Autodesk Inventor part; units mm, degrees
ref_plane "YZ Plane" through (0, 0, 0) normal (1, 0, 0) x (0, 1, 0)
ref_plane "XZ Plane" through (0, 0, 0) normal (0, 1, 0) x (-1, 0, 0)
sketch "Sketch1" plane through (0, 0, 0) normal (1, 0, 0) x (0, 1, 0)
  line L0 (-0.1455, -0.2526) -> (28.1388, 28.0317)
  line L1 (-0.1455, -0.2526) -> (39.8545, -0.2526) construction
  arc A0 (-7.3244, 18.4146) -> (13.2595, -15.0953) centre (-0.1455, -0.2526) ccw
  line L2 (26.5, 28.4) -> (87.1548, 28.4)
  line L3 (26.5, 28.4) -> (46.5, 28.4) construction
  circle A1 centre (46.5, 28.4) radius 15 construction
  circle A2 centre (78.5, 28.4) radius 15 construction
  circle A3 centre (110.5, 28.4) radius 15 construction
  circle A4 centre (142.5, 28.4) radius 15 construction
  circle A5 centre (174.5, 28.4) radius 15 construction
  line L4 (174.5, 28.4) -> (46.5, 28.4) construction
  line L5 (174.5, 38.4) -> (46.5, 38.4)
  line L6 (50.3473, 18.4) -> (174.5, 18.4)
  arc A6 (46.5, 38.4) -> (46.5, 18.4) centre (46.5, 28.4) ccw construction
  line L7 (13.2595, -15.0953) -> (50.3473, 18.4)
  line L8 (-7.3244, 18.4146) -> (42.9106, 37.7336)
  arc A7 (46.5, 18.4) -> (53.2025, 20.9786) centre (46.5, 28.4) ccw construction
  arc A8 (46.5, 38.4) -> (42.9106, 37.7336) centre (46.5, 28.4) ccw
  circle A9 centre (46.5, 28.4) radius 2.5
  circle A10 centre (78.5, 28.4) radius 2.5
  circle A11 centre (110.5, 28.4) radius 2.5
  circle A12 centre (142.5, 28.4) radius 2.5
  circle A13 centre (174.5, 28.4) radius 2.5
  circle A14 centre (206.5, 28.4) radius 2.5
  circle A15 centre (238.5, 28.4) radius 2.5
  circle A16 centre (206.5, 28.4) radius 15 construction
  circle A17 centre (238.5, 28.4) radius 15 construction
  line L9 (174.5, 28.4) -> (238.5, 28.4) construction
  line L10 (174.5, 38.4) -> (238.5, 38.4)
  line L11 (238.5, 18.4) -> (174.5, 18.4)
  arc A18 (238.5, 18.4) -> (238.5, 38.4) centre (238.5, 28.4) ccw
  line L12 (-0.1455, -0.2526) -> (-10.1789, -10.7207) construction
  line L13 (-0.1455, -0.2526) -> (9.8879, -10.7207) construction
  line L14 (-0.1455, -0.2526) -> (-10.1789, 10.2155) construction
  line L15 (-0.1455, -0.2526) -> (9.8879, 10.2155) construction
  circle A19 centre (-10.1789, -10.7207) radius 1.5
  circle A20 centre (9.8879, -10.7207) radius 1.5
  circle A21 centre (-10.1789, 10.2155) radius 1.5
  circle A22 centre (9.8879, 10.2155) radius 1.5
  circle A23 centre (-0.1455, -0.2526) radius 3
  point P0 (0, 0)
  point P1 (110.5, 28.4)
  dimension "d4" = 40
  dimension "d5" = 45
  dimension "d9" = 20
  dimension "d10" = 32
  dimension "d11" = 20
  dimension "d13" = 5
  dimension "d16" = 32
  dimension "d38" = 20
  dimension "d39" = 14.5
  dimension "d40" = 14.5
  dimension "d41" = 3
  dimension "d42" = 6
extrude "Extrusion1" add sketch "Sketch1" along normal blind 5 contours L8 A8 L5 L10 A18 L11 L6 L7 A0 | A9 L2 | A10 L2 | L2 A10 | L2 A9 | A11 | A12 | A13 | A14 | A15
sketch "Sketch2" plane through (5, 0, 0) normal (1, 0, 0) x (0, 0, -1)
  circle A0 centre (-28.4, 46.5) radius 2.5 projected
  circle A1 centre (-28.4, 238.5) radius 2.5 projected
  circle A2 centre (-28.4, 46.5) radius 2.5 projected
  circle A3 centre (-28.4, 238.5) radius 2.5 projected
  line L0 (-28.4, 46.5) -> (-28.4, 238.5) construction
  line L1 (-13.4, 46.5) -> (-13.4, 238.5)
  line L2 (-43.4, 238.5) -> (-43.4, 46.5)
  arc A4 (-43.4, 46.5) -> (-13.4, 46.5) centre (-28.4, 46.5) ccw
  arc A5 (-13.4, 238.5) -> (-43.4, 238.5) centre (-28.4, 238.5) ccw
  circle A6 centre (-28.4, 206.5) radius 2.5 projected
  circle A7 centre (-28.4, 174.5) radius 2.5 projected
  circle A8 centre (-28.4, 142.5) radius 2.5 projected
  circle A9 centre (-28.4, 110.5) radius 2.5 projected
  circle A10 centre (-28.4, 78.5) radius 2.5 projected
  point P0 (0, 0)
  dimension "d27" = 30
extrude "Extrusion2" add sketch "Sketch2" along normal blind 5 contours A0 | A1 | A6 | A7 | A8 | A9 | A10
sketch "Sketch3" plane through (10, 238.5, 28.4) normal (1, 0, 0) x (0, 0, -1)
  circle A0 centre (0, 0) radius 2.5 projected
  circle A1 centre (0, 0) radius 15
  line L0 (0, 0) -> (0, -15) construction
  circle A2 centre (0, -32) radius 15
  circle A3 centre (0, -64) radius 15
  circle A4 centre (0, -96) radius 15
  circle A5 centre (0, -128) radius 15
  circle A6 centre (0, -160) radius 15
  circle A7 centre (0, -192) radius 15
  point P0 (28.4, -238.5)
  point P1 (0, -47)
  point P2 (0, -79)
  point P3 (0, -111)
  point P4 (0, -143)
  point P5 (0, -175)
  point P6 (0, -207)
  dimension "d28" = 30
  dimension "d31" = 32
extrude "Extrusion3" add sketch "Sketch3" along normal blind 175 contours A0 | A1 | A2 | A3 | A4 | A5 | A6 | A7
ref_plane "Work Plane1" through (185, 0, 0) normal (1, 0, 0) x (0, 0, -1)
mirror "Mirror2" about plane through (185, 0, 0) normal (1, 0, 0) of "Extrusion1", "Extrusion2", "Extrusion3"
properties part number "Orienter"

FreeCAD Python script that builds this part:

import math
import FreeCAD as App
import Part
import Sketcher
from FreeCAD import Vector
Q = App.Units.Quantity

doc = App.newDocument("Part")
body = doc.addObject("PartDesign::Body", "Body")

# Sketch on YZ plane
sketch1 = body.newObject("Sketcher::SketchObject", "Sketch")
sketch1.AttachmentSupport = (doc.getObject("YZ_Plane"), [""])
sketch1.MapMode = "FlatFace"
sketch1.addGeometry([
    Part.LineSegment(Vector(42.9106, 37.7336, 0), Vector(-7.3244, 18.4146, 0)),  # 0
    Part.ArcOfCircle(Part.Circle(Vector(-0.1455, -0.2526, 0), Vector(0, 0, 1), 20.000024), math.radians(111.035393), math.radians(312.086378)),  # 1
    Part.LineSegment(Vector(13.2595, -15.0953, 0), Vector(50.3473, 18.4, 0)),  # 2
    Part.LineSegment(Vector(50.3473, 18.4, 0), Vector(238.5, 18.4, 0)),  # 3
    Part.ArcOfCircle(Part.Circle(Vector(238.5, 28.4, 0), Vector(0, 0, 1), 10), math.radians(-90), math.radians(90)),  # 4
    Part.LineSegment(Vector(238.5, 38.4, 0), Vector(46.5, 38.4, 0)),  # 5
    Part.ArcOfCircle(Part.Circle(Vector(46.5, 28.4, 0), Vector(0, 0, 1), 10), math.radians(90), math.radians(111.035125)),  # 6
    Part.Circle(Vector(-10.1789, -10.7207, 0), Vector(0, 0, 1), 1.5),  # 7
    Part.Circle(Vector(9.8879, -10.7207, 0), Vector(0, 0, 1), 1.5),  # 8
    Part.Circle(Vector(-0.1455, -0.2526, 0), Vector(0, 0, 1), 3),  # 9
    Part.Circle(Vector(-10.1789, 10.2155, 0), Vector(0, 0, 1), 1.5),  # 10
    Part.Circle(Vector(9.8879, 10.2155, 0), Vector(0, 0, 1), 1.5),  # 11
], False)
sketch1.addConstraint([
    Sketcher.Constraint("Coincident", 0, 2, 1, 1),
    Sketcher.Constraint("Coincident", 1, 2, 2, 1),
    Sketcher.Constraint("Coincident", 2, 2, 3, 1),
    Sketcher.Constraint("Coincident", 3, 2, 4, 1),
    Sketcher.Constraint("Coincident", 4, 2, 5, 1),
    Sketcher.Constraint("Coincident", 5, 2, 6, 1),
    Sketcher.Constraint("Coincident", 6, 2, 0, 1),
    Sketcher.Constraint("Horizontal", 3),
    Sketcher.Constraint("Horizontal", 5),
    Sketcher.Constraint("Coincident", 9, 3, 1, 3),
    Sketcher.Constraint("Diameter", 7, Q("3 mm")),
    Sketcher.Constraint("Diameter", 8, Q("3 mm")),
    Sketcher.Constraint("Diameter", 9, Q("6 mm")),
    Sketcher.Constraint("Diameter", 10, Q("3 mm")),
    Sketcher.Constraint("Diameter", 11, Q("3 mm")),
    Sketcher.Constraint("Radius", 1, Q("20 mm")),
    Sketcher.Constraint("Radius", 4, Q("10 mm")),
    Sketcher.Constraint("Radius", 6, Q("10 mm")),
    Sketcher.Constraint("DistanceX", 5, 2, 5, 1, Q("192 mm")),
    Sketcher.Constraint("DistanceX", 6, 3, 4, 3, Q("192 mm")),
    Sketcher.Constraint("DistanceX", 6, 3, 3, 2, Q("192 mm")),
    Sketcher.Constraint("DistanceX", 6, 3, 4, 2, Q("192 mm")),
    Sketcher.Constraint("DistanceX", -1, 1, 4, 3, Q("238.5 mm")),
    Sketcher.Constraint("DistanceY", -1, 1, 4, 3, Q("28.4 mm")),
    Sketcher.Constraint("DistanceX", 3, 1, 3, 2, Q("188.1527 mm")),
    Sketcher.Constraint("DistanceX", 7, 3, -1, 1, Q("10.179 mm")),
    Sketcher.Constraint("DistanceX", -1, 1, 8, 3, Q("9.888 mm")),
    Sketcher.Constraint("DistanceX", 10, 3, -1, 1, Q("10.179 mm")),
    Sketcher.Constraint("DistanceX", -1, 1, 11, 3, Q("9.888 mm")),
    Sketcher.Constraint("DistanceY", 7, 3, 1, 3, Q("10.468 mm")),
    Sketcher.Constraint("DistanceY", 8, 3, 1, 3, Q("10.468 mm")),
    Sketcher.Constraint("DistanceY", 1, 3, 10, 3, Q("10.468 mm")),
    Sketcher.Constraint("DistanceY", 1, 3, 11, 3, Q("10.468 mm")),
    Sketcher.Constraint("DistanceY", 10, 3, 0, 2, Q("8.199 mm")),
    Sketcher.Constraint("DistanceX", 1, 3, 1, 2, Q("13.405 mm")),
    Sketcher.Constraint("DistanceY", 11, 3, 6, 2, Q("27.518 mm")),
    Sketcher.Constraint("DistanceX", 0, 2, 6, 2, Q("50.235 mm")),
    Sketcher.Constraint("Distance", 2, Q("49.9744 mm")),
])
pad1 = body.newObject("PartDesign::Pad", "Pad")
pad1.Profile = sketch1
pad1.Length = 5

# Sketch on YZ plane
sketch2 = body.newObject("Sketcher::SketchObject", "Sketch001")
sketch2.AttachmentSupport = (doc.getObject("YZ_Plane"), [""])
sketch2.MapMode = "FlatFace"
sketch2.AttachmentOffset = App.Placement(Vector(0, 0, 5), App.Rotation())
sketch2.addGeometry([
    Part.Circle(Vector(46.5, 28.4, 0), Vector(0, 0, 1), 2.5),  # 0
    Part.Circle(Vector(238.5, 28.4, 0), Vector(0, 0, 1), 2.5),  # 1
    Part.Circle(Vector(206.5, 28.4, 0), Vector(0, 0, 1), 2.5),  # 2
    Part.Circle(Vector(174.5, 28.4, 0), Vector(0, 0, 1), 2.5),  # 3
    Part.Circle(Vector(142.5, 28.4, 0), Vector(0, 0, 1), 2.5),  # 4
    Part.Circle(Vector(110.5, 28.4, 0), Vector(0, 0, 1), 2.5),  # 5
    Part.Circle(Vector(78.5, 28.4, 0), Vector(0, 0, 1), 2.5),  # 6
], False)
sketch2.addConstraint([
    Sketcher.Constraint("Equal", 0, 1),
    Sketcher.Constraint("Equal", 1, 2),
    Sketcher.Constraint("Equal", 2, 3),
    Sketcher.Constraint("Equal", 3, 4),
    Sketcher.Constraint("Equal", 4, 5),
    Sketcher.Constraint("Equal", 5, 6),
    Sketcher.Constraint("Horizontal", 0, 3, 1, 3),
    Sketcher.Constraint("Horizontal", 1, 3, 2, 3),
    Sketcher.Constraint("Horizontal", 2, 3, 3, 3),
    Sketcher.Constraint("Horizontal", 3, 3, 4, 3),
    Sketcher.Constraint("Horizontal", 4, 3, 5, 3),
    Sketcher.Constraint("Horizontal", 5, 3, 6, 3),
    Sketcher.Constraint("Diameter", 0, Q("5 mm")),
    Sketcher.Constraint("DistanceX", 0, 3, 1, 3, Q("192 mm")),
    Sketcher.Constraint("DistanceX", 2, 3, 1, 3, Q("32 mm")),
    Sketcher.Constraint("DistanceX", 3, 3, 2, 3, Q("32 mm")),
    Sketcher.Constraint("DistanceX", 4, 3, 3, 3, Q("32 mm")),
    Sketcher.Constraint("DistanceX", 5, 3, 4, 3, Q("32 mm")),
    Sketcher.Constraint("DistanceX", 0, 3, 6, 3, Q("32 mm")),
    Sketcher.Constraint("DistanceX", -1, 1, 0, 3, Q("46.5 mm")),
    Sketcher.Constraint("DistanceY", -1, 1, 0, 3, Q("28.4 mm")),
])
pad2 = body.newObject("PartDesign::Pad", "Pad001")
pad2.Profile = sketch2
pad2.Length = 5

# Sketch on YZ plane
sketch3 = body.newObject("Sketcher::SketchObject", "Sketch002")
sketch3.AttachmentSupport = (doc.getObject("YZ_Plane"), [""])
sketch3.MapMode = "FlatFace"
sketch3.AttachmentOffset = App.Placement(Vector(0, 0, 10), App.Rotation())
sketch3.addGeometry([
    Part.Circle(Vector(238, 28, 0), Vector(0, 0, 1), 15),  # 0
    Part.Circle(Vector(206, 28, 0), Vector(0, 0, 1), 15),  # 1
    Part.Circle(Vector(174, 28, 0), Vector(0, 0, 1), 15),  # 2
    Part.Circle(Vector(142, 28, 0), Vector(0, 0, 1), 15),  # 3
    Part.Circle(Vector(110, 28, 0), Vector(0, 0, 1), 15),  # 4
    Part.Circle(Vector(78, 28, 0), Vector(0, 0, 1), 15),  # 5
    Part.Circle(Vector(46, 28, 0), Vector(0, 0, 1), 15),  # 6
], False)
sketch3.addConstraint([
    Sketcher.Constraint("Equal", 0, 1),
    Sketcher.Constraint("Equal", 1, 2),
    Sketcher.Constraint("Equal", 2, 3),
    Sketcher.Constraint("Equal", 3, 4),
    Sketcher.Constraint("Equal", 4, 5),
    Sketcher.Constraint("Equal", 5, 6),
    Sketcher.Constraint("Horizontal", 0, 3, 1, 3),
    Sketcher.Constraint("Horizontal", 1, 3, 2, 3),
    Sketcher.Constraint("Horizontal", 2, 3, 3, 3),
    Sketcher.Constraint("Horizontal", 3, 3, 4, 3),
    Sketcher.Constraint("Horizontal", 4, 3, 5, 3),
    Sketcher.Constraint("Horizontal", 5, 3, 6, 3),
    Sketcher.Constraint("Diameter", 0, Q("30 mm")),
    Sketcher.Constraint("DistanceX", 1, 3, 0, 3, Q("32 mm")),
    Sketcher.Constraint("DistanceX", 2, 3, 1, 3, Q("32 mm")),
    Sketcher.Constraint("DistanceX", 3, 3, 2, 3, Q("32 mm")),
    Sketcher.Constraint("DistanceX", 4, 3, 3, 3, Q("32 mm")),
    Sketcher.Constraint("DistanceX", 5, 3, 4, 3, Q("32 mm")),
    Sketcher.Constraint("DistanceX", 6, 3, 5, 3, Q("32 mm")),
    Sketcher.Constraint("DistanceX", -1, 1, 0, 3, Q("238.5 mm")),
    Sketcher.Constraint("DistanceY", -1, 1, 0, 3, Q("28.4 mm")),
])
pad3 = body.newObject("PartDesign::Pad", "Pad002")
pad3.Profile = sketch3
pad3.Length = 175
doc.recompute()

datumplane = body.newObject("PartDesign::Plane", "DatumPlane")
datumplane.AttachmentSupport = (doc.getObject("YZ_Plane"), [""])
datumplane.MapMode = "FlatFace"
datumplane.AttachmentOffset = App.Placement(Vector(0, 0, 185), App.Rotation())
mirrored = body.newObject("PartDesign::Mirrored", "Mirrored")
mirrored.Originals = [pad1, pad2, pad3]
mirrored.MirrorPlane = (datumplane, [""])
body.Tip = mirrored

doc.recompute()
